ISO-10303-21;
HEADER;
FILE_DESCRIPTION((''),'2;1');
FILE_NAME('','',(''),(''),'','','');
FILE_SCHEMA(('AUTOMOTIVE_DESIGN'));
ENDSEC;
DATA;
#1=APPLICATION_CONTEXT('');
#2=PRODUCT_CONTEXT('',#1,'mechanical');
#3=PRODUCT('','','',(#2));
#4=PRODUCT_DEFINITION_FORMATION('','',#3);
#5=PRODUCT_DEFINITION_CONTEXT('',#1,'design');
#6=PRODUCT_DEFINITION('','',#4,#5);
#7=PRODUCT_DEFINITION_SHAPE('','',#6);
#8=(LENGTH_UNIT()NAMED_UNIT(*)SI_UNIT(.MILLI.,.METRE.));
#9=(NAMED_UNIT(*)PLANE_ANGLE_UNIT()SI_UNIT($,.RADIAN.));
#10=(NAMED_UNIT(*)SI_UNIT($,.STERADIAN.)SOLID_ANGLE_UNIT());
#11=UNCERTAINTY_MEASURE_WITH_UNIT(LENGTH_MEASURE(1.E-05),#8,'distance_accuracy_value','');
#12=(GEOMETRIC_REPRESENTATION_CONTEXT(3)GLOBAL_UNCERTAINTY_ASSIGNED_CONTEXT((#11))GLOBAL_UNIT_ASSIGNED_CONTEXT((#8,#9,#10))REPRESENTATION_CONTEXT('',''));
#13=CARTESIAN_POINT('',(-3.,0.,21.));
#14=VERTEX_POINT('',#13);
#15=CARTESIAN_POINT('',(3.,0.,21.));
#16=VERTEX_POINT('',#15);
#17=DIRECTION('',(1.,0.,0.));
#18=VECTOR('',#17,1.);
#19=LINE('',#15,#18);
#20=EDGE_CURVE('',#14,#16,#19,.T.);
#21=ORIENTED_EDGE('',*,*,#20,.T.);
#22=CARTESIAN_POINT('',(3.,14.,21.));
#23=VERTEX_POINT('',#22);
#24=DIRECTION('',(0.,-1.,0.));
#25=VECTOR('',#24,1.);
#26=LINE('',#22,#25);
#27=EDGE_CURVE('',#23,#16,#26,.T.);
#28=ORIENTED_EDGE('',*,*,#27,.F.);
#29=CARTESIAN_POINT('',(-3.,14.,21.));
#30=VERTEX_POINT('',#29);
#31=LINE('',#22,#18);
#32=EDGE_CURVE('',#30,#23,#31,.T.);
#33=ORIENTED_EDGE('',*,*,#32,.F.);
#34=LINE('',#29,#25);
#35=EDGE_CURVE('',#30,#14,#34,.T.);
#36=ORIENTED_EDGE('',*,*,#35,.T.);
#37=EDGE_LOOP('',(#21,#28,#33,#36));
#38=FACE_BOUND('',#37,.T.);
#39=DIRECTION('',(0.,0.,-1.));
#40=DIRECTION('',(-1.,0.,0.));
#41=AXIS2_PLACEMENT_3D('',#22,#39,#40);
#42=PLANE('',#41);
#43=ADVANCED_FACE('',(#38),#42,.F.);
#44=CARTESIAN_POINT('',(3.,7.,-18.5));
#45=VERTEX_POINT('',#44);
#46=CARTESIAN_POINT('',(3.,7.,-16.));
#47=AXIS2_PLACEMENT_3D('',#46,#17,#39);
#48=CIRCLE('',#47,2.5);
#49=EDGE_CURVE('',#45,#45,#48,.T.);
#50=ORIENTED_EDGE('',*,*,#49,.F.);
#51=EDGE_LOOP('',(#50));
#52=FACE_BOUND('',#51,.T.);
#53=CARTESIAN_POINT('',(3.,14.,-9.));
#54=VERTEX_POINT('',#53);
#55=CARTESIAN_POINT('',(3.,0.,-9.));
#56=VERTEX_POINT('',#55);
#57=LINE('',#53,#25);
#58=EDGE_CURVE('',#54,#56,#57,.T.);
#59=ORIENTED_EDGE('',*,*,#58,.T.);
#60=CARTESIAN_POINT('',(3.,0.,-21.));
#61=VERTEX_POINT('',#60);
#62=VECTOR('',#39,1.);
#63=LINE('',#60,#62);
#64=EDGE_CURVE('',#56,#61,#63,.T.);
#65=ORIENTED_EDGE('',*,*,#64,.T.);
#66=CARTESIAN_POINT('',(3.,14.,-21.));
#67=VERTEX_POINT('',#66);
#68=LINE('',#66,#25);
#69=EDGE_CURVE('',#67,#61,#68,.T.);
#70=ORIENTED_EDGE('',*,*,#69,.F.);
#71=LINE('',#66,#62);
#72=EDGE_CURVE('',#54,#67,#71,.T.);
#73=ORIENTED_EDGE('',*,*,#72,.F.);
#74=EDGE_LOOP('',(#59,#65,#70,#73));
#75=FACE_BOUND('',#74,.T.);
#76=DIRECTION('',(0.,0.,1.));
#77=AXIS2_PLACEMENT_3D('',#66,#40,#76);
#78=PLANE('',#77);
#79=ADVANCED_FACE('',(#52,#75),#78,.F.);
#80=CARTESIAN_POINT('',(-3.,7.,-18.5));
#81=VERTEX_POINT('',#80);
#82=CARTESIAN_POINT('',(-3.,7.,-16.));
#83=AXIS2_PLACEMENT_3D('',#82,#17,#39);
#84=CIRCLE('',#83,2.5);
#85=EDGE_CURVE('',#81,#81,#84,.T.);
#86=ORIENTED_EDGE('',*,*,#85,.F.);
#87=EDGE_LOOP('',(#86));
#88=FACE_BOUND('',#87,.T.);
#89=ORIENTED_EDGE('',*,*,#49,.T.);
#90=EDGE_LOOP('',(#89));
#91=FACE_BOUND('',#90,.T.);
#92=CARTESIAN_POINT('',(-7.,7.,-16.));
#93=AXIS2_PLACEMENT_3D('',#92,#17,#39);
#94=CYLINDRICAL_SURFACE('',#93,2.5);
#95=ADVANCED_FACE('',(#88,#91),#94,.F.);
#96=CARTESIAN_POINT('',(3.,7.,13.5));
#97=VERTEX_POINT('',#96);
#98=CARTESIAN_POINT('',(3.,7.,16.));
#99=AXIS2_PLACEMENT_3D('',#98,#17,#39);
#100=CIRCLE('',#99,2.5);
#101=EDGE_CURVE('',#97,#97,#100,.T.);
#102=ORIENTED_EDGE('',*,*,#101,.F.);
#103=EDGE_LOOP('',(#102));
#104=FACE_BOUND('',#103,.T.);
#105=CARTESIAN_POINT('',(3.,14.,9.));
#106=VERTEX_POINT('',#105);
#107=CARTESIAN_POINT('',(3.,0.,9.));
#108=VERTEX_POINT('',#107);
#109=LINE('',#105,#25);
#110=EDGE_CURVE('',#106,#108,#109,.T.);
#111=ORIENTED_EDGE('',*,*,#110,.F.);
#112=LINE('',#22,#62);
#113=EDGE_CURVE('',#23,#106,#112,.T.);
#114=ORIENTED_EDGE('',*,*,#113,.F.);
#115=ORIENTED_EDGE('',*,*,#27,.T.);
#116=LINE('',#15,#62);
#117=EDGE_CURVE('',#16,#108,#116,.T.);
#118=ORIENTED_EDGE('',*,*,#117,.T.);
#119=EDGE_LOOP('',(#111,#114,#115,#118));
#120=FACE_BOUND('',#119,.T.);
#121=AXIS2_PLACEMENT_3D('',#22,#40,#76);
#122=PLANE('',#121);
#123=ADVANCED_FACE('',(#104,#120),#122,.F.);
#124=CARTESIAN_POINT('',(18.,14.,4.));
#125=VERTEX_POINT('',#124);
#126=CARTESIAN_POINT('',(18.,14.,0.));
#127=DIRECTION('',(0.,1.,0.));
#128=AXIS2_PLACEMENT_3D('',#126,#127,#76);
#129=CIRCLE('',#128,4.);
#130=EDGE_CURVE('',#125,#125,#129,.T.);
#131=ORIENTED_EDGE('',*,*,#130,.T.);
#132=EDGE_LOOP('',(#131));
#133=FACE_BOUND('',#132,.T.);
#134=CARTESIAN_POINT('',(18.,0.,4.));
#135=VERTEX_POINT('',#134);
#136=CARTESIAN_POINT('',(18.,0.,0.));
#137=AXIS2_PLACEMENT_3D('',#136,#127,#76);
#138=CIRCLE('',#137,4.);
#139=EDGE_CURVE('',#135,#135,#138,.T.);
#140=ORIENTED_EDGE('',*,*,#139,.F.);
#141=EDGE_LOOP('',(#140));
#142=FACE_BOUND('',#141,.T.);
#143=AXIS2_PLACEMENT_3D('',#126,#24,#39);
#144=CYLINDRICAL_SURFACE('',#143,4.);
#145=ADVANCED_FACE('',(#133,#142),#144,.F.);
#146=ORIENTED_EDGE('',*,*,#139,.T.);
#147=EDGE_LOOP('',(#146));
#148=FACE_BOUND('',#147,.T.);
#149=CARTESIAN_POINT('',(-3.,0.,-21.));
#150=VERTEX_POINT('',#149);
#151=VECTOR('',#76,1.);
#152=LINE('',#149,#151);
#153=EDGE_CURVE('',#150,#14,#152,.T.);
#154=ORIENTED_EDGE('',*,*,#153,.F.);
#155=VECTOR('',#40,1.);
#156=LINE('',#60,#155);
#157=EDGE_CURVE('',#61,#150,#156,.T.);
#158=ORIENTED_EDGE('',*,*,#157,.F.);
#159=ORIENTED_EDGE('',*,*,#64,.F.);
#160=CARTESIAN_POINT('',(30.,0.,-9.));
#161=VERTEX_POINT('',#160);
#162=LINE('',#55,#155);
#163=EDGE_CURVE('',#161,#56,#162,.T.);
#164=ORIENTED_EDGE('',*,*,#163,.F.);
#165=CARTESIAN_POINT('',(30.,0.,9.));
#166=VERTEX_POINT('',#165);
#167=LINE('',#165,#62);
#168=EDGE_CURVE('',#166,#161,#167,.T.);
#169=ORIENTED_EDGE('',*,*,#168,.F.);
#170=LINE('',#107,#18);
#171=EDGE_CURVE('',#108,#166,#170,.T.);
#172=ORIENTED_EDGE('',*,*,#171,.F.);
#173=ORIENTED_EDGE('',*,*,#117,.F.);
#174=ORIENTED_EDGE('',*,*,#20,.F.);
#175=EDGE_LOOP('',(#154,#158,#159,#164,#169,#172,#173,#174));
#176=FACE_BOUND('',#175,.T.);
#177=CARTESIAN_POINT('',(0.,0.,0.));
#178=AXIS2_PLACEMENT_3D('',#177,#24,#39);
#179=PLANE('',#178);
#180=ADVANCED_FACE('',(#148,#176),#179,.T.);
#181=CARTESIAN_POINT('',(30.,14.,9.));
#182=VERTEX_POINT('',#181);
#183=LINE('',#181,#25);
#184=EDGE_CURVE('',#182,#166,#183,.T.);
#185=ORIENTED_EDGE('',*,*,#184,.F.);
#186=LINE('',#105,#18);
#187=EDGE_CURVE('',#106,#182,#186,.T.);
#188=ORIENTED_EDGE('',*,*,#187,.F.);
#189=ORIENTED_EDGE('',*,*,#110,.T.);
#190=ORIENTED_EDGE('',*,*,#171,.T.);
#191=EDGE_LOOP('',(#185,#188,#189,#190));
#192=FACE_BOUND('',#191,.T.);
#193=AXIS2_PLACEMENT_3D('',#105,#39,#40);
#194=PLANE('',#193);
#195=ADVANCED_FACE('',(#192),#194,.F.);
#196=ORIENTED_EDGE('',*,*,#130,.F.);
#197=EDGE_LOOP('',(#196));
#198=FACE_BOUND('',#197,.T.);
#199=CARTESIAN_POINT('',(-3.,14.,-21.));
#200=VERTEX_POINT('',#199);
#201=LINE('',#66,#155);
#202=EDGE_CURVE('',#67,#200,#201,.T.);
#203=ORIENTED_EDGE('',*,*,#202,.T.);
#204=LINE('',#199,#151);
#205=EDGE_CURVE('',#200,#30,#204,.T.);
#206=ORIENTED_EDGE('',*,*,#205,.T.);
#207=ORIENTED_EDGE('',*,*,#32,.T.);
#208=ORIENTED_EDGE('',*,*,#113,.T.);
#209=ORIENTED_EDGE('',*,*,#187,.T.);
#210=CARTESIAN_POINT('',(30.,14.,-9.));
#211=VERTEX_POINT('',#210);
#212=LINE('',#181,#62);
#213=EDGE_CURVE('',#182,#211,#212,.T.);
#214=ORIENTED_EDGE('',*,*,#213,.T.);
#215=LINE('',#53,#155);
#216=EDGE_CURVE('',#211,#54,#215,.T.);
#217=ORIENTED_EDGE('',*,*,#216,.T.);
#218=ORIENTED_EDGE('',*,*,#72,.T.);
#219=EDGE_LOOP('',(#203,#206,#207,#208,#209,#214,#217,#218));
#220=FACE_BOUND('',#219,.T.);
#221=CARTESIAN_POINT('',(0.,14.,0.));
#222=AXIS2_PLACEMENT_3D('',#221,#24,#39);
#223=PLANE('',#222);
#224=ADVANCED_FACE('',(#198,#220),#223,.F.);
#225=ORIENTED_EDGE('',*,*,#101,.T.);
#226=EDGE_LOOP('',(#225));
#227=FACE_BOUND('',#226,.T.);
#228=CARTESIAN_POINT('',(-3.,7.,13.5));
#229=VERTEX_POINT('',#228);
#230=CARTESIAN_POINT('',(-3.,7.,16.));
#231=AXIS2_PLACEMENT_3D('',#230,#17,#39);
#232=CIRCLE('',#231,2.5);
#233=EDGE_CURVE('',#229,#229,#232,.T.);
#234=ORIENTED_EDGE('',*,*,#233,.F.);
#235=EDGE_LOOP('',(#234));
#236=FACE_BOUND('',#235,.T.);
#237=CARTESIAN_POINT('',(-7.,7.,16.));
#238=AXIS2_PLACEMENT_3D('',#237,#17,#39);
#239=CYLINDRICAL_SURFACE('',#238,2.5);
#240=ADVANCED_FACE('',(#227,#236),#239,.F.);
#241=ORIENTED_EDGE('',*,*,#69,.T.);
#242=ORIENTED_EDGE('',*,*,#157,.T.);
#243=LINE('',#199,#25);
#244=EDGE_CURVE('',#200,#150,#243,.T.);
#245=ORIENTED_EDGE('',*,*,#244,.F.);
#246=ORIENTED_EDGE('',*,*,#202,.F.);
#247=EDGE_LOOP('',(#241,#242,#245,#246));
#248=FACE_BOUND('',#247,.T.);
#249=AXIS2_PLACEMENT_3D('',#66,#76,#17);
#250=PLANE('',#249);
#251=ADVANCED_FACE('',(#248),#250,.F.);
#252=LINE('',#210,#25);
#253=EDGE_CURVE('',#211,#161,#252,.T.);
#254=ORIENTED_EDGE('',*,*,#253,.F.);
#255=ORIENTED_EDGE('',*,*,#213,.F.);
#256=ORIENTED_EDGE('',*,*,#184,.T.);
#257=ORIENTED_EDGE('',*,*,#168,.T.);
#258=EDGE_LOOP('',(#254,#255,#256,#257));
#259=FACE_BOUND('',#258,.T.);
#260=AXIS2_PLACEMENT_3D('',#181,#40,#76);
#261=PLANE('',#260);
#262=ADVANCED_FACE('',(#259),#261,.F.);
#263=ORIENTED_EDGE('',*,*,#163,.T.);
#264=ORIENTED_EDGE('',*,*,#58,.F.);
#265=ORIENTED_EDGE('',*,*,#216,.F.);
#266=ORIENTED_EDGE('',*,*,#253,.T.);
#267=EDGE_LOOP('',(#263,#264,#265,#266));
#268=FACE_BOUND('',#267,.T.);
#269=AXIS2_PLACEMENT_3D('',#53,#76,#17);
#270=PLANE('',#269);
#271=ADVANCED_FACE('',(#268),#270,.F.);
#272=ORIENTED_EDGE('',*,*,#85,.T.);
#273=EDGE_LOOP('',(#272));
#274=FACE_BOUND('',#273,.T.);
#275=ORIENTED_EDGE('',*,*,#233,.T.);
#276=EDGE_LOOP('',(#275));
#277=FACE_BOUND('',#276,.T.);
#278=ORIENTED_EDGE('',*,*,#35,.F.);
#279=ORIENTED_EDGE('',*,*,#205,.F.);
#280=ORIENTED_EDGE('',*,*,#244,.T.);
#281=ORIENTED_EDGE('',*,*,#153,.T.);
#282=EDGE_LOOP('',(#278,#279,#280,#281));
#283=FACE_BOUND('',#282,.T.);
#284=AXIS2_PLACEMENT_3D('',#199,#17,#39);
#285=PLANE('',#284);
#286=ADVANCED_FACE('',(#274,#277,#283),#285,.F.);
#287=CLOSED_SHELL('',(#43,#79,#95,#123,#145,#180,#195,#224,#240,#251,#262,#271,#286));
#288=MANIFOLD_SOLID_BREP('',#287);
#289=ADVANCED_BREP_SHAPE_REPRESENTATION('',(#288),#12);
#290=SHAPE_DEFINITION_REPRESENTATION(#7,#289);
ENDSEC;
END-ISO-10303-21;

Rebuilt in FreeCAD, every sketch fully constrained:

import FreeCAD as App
import Part
import Sketcher
from FreeCAD import Vector
Q = App.Units.Quantity

doc = App.newDocument("Part")
body = doc.addObject("PartDesign::Body", "Body")

# Sketch on XZ plane
sketch1 = body.newObject("Sketcher::SketchObject", "Sketch")
sketch1.AttachmentSupport = (doc.getObject("XZ_Plane"), [""])
sketch1.MapMode = "FlatFace"
sketch1.addGeometry(Part.LineSegment(Vector(3, 21, 0), Vector(3, 9, 0)), False)
sketch1.addGeometry(Part.LineSegment(Vector(3, 9, 0), Vector(30, 9, 0)), False)
sketch1.addGeometry(Part.LineSegment(Vector(30, 9, 0), Vector(30, -9, 0)), False)
sketch1.addGeometry(Part.LineSegment(Vector(30, -9, 0), Vector(3, -9, 0)), False)
sketch1.addGeometry(Part.LineSegment(Vector(3, -9, 0), Vector(3, -21, 0)), False)
sketch1.addGeometry(Part.LineSegment(Vector(3, -21, 0), Vector(-3, -21, 0)), False)
sketch1.addGeometry(Part.LineSegment(Vector(-3, -21, 0), Vector(-3, 21, 0)), False)
sketch1.addGeometry(Part.LineSegment(Vector(-3, 21, 0), Vector(3, 21, 0)), False)
sketch1.addGeometry(Part.Circle(Vector(18, 0, 0), Vector(0, 0, 1), 4), False)
sketch1.addConstraint(Sketcher.Constraint("Coincident", 0, 2, 1, 1))
sketch1.addConstraint(Sketcher.Constraint("Coincident", 1, 2, 2, 1))
sketch1.addConstraint(Sketcher.Constraint("Coincident", 2, 2, 3, 1))
sketch1.addConstraint(Sketcher.Constraint("Coincident", 3, 2, 4, 1))
sketch1.addConstraint(Sketcher.Constraint("Coincident", 4, 2, 5, 1))
sketch1.addConstraint(Sketcher.Constraint("Coincident", 5, 2, 6, 1))
sketch1.addConstraint(Sketcher.Constraint("Coincident", 6, 2, 7, 1))
sketch1.addConstraint(Sketcher.Constraint("Coincident", 7, 2, 0, 1))
sketch1.addConstraint(Sketcher.Constraint("Vertical", 0))
sketch1.addConstraint(Sketcher.Constraint("Horizontal", 1))
sketch1.addConstraint(Sketcher.Constraint("Vertical", 2))
sketch1.addConstraint(Sketcher.Constraint("Horizontal", 3))
sketch1.addConstraint(Sketcher.Constraint("Vertical", 4))
sketch1.addConstraint(Sketcher.Constraint("Horizontal", 5))
sketch1.addConstraint(Sketcher.Constraint("Vertical", 6))
sketch1.addConstraint(Sketcher.Constraint("Horizontal", 7))
sketch1.addConstraint(Sketcher.Constraint("Symmetric", 4, 2, 6, 2, -1, 1))
sketch1.addConstraint(Sketcher.Constraint("Symmetric", 0, 2, 3, 2, -1))
sketch1.addConstraint(Sketcher.Constraint("PointOnObject", 8, 3, -1))
sketch1.addConstraint(Sketcher.Constraint("Diameter", 8, Q("8 mm")))
sketch1.addConstraint(Sketcher.Constraint("DistanceX", 1, 1, 1, 2, Q("27 mm")))
sketch1.addConstraint(Sketcher.Constraint("DistanceX", 5, 2, 5, 1, Q("6 mm")))
sketch1.addConstraint(Sketcher.Constraint("DistanceY", 0, 2, 0, 1, Q("12 mm")))
sketch1.addConstraint(Sketcher.Constraint("DistanceY", 2, 2, 2, 1, Q("18 mm")))
sketch1.addConstraint(Sketcher.Constraint("DistanceX", -1, 1, 8, 3, Q("18 mm")))
pad1 = body.newObject("PartDesign::Pad", "Pad")
pad1.Profile = sketch1
pad1.Length = 14
pad1.Reversed = True

# Sketch on YZ plane
sketch2 = body.newObject("Sketcher::SketchObject", "Sketch001")
sketch2.AttachmentSupport = (doc.getObject("YZ_Plane"), [""])
sketch2.MapMode = "FlatFace"
sketch2.AttachmentOffset = App.Placement(Vector(0, 0, 3), App.Rotation())
sketch2.addGeometry(Part.Circle(Vector(7, 16, 0), Vector(0, 0, 1), 2.5), False)
sketch2.addGeometry(Part.Circle(Vector(7, -16, 0), Vector(0, 0, 1), 2.5), False)
sketch2.addConstraint(Sketcher.Constraint("Equal", 0, 1))
sketch2.addConstraint(Sketcher.Constraint("Symmetric", 0, 3, 1, 3, -1))
sketch2.addConstraint(Sketcher.Constraint("Diameter", 0, Q("5 mm")))
sketch2.addConstraint(Sketcher.Constraint("DistanceX", -1, 1, 0, 3, Q("7 mm")))
sketch2.addConstraint(Sketcher.Constraint("DistanceY", -1, 1, 0, 3, Q("16 mm")))
pocket1 = body.newObject("PartDesign::Pocket", "Pocket")
pocket1.Profile = sketch2
pocket1.Length = 10

doc.recompute()
